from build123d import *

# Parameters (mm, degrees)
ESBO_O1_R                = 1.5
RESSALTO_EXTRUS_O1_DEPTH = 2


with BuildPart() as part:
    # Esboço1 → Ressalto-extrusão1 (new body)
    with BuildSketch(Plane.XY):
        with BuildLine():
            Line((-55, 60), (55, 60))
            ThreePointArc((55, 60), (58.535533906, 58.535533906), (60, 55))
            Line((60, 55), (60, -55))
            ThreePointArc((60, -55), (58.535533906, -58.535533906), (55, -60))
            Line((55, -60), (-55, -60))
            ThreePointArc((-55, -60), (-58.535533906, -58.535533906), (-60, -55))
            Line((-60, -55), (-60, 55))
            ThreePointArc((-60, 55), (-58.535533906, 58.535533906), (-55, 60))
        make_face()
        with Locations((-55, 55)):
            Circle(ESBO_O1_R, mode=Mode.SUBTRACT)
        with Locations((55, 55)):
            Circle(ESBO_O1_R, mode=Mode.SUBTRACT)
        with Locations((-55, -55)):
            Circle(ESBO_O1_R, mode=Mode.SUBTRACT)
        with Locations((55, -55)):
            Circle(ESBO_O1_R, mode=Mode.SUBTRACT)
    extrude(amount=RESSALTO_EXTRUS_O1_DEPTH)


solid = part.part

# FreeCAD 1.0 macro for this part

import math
import FreeCAD as App
import Part
import Sketcher
from FreeCAD import Vector
Q = App.Units.Quantity

doc = App.newDocument("Part")
body = doc.addObject("PartDesign::Body", "Body")

# Sketch on XY plane
sketch1 = body.newObject("Sketcher::SketchObject", "Sketch")
sketch1.AttachmentSupport = (doc.getObject("XY_Plane"), [""])
sketch1.MapMode = "FlatFace"
sketch1.addGeometry([
    Part.LineSegment(Vector(55, 60, 0), Vector(-55, 60, 0)),  # 0
    Part.ArcOfCircle(Part.Circle(Vector(-55, 55, 0), Vector(0, 0, 1), 5), math.radians(90), math.radians(180)),  # 1
    Part.LineSegment(Vector(-60, 55, 0), Vector(-60, -55, 0)),  # 2
    Part.ArcOfCircle(Part.Circle(Vector(-55, -55, 0), Vector(0, 0, 1), 5), math.radians(180), math.radians(270)),  # 3
    Part.LineSegment(Vector(-55, -60, 0), Vector(55, -60, 0)),  # 4
    Part.ArcOfCircle(Part.Circle(Vector(55, -55, 0), Vector(0, 0, 1), 5), math.radians(-90), math.radians(0)),  # 5
    Part.LineSegment(Vector(60, -55, 0), Vector(60, 55, 0)),  # 6
    Part.ArcOfCircle(Part.Circle(Vector(55, 55, 0), Vector(0, 0, 1), 5), math.radians(0), math.radians(90)),  # 7
    Part.Circle(Vector(55, -55, 0), Vector(0, 0, 1), 1.5),  # 8
    Part.Circle(Vector(-55, -55, 0), Vector(0, 0, 1), 1.5),  # 9
    Part.Circle(Vector(55, 55, 0), Vector(0, 0, 1), 1.5),  # 10
    Part.Circle(Vector(-55, 55, 0), Vector(0, 0, 1), 1.5),  # 11
], False)
sketch1.addConstraint([
    Sketcher.Constraint("Tangent", 0, 2, 1, 1),
    Sketcher.Constraint("Tangent", 1, 2, 2, 1),
    Sketcher.Constraint("Tangent", 2, 2, 3, 1),
    Sketcher.Constraint("Tangent", 3, 2, 4, 1),
    Sketcher.Constraint("Tangent", 4, 2, 5, 1),
    Sketcher.Constraint("Tangent", 5, 2, 6, 1),
    Sketcher.Constraint("Tangent", 6, 2, 7, 1),
    Sketcher.Constraint("Tangent", 7, 2, 0, 1),
    Sketcher.Constraint("Horizontal", 0),
    Sketcher.Constraint("Vertical", 2),
    Sketcher.Constraint("Horizontal", 4),
    Sketcher.Constraint("Vertical", 6),
    Sketcher.Constraint("Coincident", 8, 3, 5, 3),
    Sketcher.Constraint("Coincident", 9, 3, 3, 3),
    Sketcher.Constraint("Coincident", 10, 3, 7, 3),
    Sketcher.Constraint("Coincident", 11, 3, 1, 3),
    Sketcher.Constraint("Equal", 1, 3),
    Sketcher.Constraint("Equal", 3, 5),
    Sketcher.Constraint("Equal", 5, 7),
    Sketcher.Constraint("Equal", 8, 9),
    Sketcher.Constraint("Equal", 9, 10),
    Sketcher.Constraint("Equal", 10, 11),
    Sketcher.Constraint("Symmetric", 1, 3, 5, 3, -1, 1),
    Sketcher.Constraint("Equal", 4, 2),
    Sketcher.Constraint("Diameter", 8, Q("3 mm")),
    Sketcher.Constraint("Radius", 1, Q("5 mm")),
    Sketcher.Constraint("DistanceX", 0, 2, 0, 1, Q("110 mm")),
])
pad1 = body.newObject("PartDesign::Pad", "Pad")
pad1.Profile = sketch1
pad1.Length = 2

doc.recompute()
